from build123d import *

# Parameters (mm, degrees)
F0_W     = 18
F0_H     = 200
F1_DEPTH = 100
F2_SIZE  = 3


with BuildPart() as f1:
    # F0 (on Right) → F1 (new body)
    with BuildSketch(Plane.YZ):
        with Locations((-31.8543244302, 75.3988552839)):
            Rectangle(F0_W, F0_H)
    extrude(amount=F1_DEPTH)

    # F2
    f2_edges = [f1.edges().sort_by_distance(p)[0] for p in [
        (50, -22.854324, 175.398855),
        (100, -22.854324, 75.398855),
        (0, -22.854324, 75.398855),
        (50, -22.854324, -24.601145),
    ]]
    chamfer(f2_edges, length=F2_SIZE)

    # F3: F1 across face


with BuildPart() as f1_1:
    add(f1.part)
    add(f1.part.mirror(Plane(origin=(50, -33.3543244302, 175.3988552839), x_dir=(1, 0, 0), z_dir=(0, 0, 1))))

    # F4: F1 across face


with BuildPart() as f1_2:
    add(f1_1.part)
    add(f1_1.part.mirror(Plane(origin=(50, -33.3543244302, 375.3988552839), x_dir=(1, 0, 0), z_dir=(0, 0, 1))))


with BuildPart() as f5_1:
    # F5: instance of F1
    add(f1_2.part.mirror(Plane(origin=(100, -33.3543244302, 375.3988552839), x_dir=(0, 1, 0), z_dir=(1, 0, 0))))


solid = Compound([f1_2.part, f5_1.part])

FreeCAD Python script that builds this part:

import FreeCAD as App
import Part
import Sketcher
Q = App.Units.Quantity


def edges_at(feature, points):
    """Names of the edges that pass closest to the given points."""
    edges = feature.Shape.Edges
    near = lambda p: min(range(len(edges)), key=lambda i: edges[i].distToShape(Part.Vertex(*p))[0])
    return sorted({f"Edge{near(p) + 1}" for p in points})

doc = App.newDocument("Part")
body = doc.addObject("PartDesign::Body", "Body")

# Sketch on YZ plane
sketch1 = doc.addObject("Sketcher::SketchObject", "Sketch")
body.addObject(sketch1)
sketch1.AttachmentSupport = (doc.YZ_Plane, [""])
sketch1.MapMode = "FlatFace"
sketch1.addGeometry(Part.LineSegment(App.Vector(-41, 175, 0), App.Vector(-41, -25, 0)), False)
sketch1.addGeometry(Part.LineSegment(App.Vector(-41, -25, 0), App.Vector(-23, -25, 0)), False)
sketch1.addGeometry(Part.LineSegment(App.Vector(-23, -25, 0), App.Vector(-23, 175, 0)), False)
sketch1.addGeometry(Part.LineSegment(App.Vector(-23, 175, 0), App.Vector(-41, 175, 0)), False)
sketch1.addConstraint(Sketcher.Constraint("Coincident", 0, 2, 1, 1))
sketch1.addConstraint(Sketcher.Constraint("Coincident", 1, 2, 2, 1))
sketch1.addConstraint(Sketcher.Constraint("Coincident", 2, 2, 3, 1))
sketch1.addConstraint(Sketcher.Constraint("Coincident", 3, 2, 0, 1))
sketch1.addConstraint(Sketcher.Constraint("Vertical", 0))
sketch1.addConstraint(Sketcher.Constraint("Horizontal", 1))
sketch1.addConstraint(Sketcher.Constraint("Vertical", 2))
sketch1.addConstraint(Sketcher.Constraint("Horizontal", 3))
sketch1.addConstraint(Sketcher.Constraint("DistanceX", 1, 1, 1, 2, Q("18 mm")))
sketch1.addConstraint(Sketcher.Constraint("DistanceY", 0, 2, 0, 1, Q("200 mm")))
sketch1.addConstraint(Sketcher.Constraint("DistanceX", 0, 2, -1, 1, Q("40.854324 mm")))
sketch1.addConstraint(Sketcher.Constraint("DistanceY", 0, 2, -1, 1, Q("24.601145 mm")))
pad1 = doc.addObject("PartDesign::Pad", "Pad")
body.addObject(pad1)
pad1.Profile = sketch1
pad1.Length = 100
doc.recompute()

chamfer = doc.addObject("PartDesign::Chamfer", "Chamfer")
body.addObject(chamfer)
chamfer.Base = (pad1, edges_at(pad1, [
    (50, -22.854, 175.399),
    (100, -22.854, 75.399),
    (0, -22.854, 75.399),
    (50, -22.854, -24.601),
]))
chamfer.Size = 3
body2 = doc.addObject("PartDesign::Body", "Body001")
doc.recompute()

body2.BaseFeature = body
doc.recompute()

mirroring = doc.addObject("Part::Mirroring", "Mirroring")
mirroring.Source = body
mirroring.Base = App.Vector(50, -33.354324, 175.398855)
mirroring.Normal = App.Vector(0, 0, 1)
body3 = doc.addObject("PartDesign::Body", "Body002")
body3.BaseFeature = mirroring
boolean = doc.addObject("PartDesign::Boolean", "Boolean")
body2.addObject(boolean)
boolean.Type = "Fuse"
boolean.addObjects([body3])
doc.recompute()
body4 = doc.addObject("PartDesign::Body", "Body003")
doc.recompute()

body4.BaseFeature = body2
doc.recompute()

mirroring2 = doc.addObject("Part::Mirroring", "Mirroring001")
mirroring2.Source = body2
mirroring2.Base = App.Vector(50, -33.354324, 375.398855)
mirroring2.Normal = App.Vector(0, 0, 1)
body5 = doc.addObject("PartDesign::Body", "Body004")
body5.BaseFeature = mirroring2
boolean2 = doc.addObject("PartDesign::Boolean", "Boolean001")
body4.addObject(boolean2)
boolean2.Type = "Fuse"
boolean2.addObjects([body5])
doc.recompute()
body6 = doc.addObject("PartDesign::Body", "Body005")
doc.recompute()

mirroring3 = doc.addObject("Part::Mirroring", "Mirroring002")
mirroring3.Source = body4
mirroring3.Base = App.Vector(100, -33.354324, 375.398855)
mirroring3.Normal = App.Vector(1, 0, 0)
body6.BaseFeature = mirroring3
doc.recompute()
mirroring.Visibility = False
mirroring2.Visibility = False
mirroring3.Visibility = False

doc.recompute()
